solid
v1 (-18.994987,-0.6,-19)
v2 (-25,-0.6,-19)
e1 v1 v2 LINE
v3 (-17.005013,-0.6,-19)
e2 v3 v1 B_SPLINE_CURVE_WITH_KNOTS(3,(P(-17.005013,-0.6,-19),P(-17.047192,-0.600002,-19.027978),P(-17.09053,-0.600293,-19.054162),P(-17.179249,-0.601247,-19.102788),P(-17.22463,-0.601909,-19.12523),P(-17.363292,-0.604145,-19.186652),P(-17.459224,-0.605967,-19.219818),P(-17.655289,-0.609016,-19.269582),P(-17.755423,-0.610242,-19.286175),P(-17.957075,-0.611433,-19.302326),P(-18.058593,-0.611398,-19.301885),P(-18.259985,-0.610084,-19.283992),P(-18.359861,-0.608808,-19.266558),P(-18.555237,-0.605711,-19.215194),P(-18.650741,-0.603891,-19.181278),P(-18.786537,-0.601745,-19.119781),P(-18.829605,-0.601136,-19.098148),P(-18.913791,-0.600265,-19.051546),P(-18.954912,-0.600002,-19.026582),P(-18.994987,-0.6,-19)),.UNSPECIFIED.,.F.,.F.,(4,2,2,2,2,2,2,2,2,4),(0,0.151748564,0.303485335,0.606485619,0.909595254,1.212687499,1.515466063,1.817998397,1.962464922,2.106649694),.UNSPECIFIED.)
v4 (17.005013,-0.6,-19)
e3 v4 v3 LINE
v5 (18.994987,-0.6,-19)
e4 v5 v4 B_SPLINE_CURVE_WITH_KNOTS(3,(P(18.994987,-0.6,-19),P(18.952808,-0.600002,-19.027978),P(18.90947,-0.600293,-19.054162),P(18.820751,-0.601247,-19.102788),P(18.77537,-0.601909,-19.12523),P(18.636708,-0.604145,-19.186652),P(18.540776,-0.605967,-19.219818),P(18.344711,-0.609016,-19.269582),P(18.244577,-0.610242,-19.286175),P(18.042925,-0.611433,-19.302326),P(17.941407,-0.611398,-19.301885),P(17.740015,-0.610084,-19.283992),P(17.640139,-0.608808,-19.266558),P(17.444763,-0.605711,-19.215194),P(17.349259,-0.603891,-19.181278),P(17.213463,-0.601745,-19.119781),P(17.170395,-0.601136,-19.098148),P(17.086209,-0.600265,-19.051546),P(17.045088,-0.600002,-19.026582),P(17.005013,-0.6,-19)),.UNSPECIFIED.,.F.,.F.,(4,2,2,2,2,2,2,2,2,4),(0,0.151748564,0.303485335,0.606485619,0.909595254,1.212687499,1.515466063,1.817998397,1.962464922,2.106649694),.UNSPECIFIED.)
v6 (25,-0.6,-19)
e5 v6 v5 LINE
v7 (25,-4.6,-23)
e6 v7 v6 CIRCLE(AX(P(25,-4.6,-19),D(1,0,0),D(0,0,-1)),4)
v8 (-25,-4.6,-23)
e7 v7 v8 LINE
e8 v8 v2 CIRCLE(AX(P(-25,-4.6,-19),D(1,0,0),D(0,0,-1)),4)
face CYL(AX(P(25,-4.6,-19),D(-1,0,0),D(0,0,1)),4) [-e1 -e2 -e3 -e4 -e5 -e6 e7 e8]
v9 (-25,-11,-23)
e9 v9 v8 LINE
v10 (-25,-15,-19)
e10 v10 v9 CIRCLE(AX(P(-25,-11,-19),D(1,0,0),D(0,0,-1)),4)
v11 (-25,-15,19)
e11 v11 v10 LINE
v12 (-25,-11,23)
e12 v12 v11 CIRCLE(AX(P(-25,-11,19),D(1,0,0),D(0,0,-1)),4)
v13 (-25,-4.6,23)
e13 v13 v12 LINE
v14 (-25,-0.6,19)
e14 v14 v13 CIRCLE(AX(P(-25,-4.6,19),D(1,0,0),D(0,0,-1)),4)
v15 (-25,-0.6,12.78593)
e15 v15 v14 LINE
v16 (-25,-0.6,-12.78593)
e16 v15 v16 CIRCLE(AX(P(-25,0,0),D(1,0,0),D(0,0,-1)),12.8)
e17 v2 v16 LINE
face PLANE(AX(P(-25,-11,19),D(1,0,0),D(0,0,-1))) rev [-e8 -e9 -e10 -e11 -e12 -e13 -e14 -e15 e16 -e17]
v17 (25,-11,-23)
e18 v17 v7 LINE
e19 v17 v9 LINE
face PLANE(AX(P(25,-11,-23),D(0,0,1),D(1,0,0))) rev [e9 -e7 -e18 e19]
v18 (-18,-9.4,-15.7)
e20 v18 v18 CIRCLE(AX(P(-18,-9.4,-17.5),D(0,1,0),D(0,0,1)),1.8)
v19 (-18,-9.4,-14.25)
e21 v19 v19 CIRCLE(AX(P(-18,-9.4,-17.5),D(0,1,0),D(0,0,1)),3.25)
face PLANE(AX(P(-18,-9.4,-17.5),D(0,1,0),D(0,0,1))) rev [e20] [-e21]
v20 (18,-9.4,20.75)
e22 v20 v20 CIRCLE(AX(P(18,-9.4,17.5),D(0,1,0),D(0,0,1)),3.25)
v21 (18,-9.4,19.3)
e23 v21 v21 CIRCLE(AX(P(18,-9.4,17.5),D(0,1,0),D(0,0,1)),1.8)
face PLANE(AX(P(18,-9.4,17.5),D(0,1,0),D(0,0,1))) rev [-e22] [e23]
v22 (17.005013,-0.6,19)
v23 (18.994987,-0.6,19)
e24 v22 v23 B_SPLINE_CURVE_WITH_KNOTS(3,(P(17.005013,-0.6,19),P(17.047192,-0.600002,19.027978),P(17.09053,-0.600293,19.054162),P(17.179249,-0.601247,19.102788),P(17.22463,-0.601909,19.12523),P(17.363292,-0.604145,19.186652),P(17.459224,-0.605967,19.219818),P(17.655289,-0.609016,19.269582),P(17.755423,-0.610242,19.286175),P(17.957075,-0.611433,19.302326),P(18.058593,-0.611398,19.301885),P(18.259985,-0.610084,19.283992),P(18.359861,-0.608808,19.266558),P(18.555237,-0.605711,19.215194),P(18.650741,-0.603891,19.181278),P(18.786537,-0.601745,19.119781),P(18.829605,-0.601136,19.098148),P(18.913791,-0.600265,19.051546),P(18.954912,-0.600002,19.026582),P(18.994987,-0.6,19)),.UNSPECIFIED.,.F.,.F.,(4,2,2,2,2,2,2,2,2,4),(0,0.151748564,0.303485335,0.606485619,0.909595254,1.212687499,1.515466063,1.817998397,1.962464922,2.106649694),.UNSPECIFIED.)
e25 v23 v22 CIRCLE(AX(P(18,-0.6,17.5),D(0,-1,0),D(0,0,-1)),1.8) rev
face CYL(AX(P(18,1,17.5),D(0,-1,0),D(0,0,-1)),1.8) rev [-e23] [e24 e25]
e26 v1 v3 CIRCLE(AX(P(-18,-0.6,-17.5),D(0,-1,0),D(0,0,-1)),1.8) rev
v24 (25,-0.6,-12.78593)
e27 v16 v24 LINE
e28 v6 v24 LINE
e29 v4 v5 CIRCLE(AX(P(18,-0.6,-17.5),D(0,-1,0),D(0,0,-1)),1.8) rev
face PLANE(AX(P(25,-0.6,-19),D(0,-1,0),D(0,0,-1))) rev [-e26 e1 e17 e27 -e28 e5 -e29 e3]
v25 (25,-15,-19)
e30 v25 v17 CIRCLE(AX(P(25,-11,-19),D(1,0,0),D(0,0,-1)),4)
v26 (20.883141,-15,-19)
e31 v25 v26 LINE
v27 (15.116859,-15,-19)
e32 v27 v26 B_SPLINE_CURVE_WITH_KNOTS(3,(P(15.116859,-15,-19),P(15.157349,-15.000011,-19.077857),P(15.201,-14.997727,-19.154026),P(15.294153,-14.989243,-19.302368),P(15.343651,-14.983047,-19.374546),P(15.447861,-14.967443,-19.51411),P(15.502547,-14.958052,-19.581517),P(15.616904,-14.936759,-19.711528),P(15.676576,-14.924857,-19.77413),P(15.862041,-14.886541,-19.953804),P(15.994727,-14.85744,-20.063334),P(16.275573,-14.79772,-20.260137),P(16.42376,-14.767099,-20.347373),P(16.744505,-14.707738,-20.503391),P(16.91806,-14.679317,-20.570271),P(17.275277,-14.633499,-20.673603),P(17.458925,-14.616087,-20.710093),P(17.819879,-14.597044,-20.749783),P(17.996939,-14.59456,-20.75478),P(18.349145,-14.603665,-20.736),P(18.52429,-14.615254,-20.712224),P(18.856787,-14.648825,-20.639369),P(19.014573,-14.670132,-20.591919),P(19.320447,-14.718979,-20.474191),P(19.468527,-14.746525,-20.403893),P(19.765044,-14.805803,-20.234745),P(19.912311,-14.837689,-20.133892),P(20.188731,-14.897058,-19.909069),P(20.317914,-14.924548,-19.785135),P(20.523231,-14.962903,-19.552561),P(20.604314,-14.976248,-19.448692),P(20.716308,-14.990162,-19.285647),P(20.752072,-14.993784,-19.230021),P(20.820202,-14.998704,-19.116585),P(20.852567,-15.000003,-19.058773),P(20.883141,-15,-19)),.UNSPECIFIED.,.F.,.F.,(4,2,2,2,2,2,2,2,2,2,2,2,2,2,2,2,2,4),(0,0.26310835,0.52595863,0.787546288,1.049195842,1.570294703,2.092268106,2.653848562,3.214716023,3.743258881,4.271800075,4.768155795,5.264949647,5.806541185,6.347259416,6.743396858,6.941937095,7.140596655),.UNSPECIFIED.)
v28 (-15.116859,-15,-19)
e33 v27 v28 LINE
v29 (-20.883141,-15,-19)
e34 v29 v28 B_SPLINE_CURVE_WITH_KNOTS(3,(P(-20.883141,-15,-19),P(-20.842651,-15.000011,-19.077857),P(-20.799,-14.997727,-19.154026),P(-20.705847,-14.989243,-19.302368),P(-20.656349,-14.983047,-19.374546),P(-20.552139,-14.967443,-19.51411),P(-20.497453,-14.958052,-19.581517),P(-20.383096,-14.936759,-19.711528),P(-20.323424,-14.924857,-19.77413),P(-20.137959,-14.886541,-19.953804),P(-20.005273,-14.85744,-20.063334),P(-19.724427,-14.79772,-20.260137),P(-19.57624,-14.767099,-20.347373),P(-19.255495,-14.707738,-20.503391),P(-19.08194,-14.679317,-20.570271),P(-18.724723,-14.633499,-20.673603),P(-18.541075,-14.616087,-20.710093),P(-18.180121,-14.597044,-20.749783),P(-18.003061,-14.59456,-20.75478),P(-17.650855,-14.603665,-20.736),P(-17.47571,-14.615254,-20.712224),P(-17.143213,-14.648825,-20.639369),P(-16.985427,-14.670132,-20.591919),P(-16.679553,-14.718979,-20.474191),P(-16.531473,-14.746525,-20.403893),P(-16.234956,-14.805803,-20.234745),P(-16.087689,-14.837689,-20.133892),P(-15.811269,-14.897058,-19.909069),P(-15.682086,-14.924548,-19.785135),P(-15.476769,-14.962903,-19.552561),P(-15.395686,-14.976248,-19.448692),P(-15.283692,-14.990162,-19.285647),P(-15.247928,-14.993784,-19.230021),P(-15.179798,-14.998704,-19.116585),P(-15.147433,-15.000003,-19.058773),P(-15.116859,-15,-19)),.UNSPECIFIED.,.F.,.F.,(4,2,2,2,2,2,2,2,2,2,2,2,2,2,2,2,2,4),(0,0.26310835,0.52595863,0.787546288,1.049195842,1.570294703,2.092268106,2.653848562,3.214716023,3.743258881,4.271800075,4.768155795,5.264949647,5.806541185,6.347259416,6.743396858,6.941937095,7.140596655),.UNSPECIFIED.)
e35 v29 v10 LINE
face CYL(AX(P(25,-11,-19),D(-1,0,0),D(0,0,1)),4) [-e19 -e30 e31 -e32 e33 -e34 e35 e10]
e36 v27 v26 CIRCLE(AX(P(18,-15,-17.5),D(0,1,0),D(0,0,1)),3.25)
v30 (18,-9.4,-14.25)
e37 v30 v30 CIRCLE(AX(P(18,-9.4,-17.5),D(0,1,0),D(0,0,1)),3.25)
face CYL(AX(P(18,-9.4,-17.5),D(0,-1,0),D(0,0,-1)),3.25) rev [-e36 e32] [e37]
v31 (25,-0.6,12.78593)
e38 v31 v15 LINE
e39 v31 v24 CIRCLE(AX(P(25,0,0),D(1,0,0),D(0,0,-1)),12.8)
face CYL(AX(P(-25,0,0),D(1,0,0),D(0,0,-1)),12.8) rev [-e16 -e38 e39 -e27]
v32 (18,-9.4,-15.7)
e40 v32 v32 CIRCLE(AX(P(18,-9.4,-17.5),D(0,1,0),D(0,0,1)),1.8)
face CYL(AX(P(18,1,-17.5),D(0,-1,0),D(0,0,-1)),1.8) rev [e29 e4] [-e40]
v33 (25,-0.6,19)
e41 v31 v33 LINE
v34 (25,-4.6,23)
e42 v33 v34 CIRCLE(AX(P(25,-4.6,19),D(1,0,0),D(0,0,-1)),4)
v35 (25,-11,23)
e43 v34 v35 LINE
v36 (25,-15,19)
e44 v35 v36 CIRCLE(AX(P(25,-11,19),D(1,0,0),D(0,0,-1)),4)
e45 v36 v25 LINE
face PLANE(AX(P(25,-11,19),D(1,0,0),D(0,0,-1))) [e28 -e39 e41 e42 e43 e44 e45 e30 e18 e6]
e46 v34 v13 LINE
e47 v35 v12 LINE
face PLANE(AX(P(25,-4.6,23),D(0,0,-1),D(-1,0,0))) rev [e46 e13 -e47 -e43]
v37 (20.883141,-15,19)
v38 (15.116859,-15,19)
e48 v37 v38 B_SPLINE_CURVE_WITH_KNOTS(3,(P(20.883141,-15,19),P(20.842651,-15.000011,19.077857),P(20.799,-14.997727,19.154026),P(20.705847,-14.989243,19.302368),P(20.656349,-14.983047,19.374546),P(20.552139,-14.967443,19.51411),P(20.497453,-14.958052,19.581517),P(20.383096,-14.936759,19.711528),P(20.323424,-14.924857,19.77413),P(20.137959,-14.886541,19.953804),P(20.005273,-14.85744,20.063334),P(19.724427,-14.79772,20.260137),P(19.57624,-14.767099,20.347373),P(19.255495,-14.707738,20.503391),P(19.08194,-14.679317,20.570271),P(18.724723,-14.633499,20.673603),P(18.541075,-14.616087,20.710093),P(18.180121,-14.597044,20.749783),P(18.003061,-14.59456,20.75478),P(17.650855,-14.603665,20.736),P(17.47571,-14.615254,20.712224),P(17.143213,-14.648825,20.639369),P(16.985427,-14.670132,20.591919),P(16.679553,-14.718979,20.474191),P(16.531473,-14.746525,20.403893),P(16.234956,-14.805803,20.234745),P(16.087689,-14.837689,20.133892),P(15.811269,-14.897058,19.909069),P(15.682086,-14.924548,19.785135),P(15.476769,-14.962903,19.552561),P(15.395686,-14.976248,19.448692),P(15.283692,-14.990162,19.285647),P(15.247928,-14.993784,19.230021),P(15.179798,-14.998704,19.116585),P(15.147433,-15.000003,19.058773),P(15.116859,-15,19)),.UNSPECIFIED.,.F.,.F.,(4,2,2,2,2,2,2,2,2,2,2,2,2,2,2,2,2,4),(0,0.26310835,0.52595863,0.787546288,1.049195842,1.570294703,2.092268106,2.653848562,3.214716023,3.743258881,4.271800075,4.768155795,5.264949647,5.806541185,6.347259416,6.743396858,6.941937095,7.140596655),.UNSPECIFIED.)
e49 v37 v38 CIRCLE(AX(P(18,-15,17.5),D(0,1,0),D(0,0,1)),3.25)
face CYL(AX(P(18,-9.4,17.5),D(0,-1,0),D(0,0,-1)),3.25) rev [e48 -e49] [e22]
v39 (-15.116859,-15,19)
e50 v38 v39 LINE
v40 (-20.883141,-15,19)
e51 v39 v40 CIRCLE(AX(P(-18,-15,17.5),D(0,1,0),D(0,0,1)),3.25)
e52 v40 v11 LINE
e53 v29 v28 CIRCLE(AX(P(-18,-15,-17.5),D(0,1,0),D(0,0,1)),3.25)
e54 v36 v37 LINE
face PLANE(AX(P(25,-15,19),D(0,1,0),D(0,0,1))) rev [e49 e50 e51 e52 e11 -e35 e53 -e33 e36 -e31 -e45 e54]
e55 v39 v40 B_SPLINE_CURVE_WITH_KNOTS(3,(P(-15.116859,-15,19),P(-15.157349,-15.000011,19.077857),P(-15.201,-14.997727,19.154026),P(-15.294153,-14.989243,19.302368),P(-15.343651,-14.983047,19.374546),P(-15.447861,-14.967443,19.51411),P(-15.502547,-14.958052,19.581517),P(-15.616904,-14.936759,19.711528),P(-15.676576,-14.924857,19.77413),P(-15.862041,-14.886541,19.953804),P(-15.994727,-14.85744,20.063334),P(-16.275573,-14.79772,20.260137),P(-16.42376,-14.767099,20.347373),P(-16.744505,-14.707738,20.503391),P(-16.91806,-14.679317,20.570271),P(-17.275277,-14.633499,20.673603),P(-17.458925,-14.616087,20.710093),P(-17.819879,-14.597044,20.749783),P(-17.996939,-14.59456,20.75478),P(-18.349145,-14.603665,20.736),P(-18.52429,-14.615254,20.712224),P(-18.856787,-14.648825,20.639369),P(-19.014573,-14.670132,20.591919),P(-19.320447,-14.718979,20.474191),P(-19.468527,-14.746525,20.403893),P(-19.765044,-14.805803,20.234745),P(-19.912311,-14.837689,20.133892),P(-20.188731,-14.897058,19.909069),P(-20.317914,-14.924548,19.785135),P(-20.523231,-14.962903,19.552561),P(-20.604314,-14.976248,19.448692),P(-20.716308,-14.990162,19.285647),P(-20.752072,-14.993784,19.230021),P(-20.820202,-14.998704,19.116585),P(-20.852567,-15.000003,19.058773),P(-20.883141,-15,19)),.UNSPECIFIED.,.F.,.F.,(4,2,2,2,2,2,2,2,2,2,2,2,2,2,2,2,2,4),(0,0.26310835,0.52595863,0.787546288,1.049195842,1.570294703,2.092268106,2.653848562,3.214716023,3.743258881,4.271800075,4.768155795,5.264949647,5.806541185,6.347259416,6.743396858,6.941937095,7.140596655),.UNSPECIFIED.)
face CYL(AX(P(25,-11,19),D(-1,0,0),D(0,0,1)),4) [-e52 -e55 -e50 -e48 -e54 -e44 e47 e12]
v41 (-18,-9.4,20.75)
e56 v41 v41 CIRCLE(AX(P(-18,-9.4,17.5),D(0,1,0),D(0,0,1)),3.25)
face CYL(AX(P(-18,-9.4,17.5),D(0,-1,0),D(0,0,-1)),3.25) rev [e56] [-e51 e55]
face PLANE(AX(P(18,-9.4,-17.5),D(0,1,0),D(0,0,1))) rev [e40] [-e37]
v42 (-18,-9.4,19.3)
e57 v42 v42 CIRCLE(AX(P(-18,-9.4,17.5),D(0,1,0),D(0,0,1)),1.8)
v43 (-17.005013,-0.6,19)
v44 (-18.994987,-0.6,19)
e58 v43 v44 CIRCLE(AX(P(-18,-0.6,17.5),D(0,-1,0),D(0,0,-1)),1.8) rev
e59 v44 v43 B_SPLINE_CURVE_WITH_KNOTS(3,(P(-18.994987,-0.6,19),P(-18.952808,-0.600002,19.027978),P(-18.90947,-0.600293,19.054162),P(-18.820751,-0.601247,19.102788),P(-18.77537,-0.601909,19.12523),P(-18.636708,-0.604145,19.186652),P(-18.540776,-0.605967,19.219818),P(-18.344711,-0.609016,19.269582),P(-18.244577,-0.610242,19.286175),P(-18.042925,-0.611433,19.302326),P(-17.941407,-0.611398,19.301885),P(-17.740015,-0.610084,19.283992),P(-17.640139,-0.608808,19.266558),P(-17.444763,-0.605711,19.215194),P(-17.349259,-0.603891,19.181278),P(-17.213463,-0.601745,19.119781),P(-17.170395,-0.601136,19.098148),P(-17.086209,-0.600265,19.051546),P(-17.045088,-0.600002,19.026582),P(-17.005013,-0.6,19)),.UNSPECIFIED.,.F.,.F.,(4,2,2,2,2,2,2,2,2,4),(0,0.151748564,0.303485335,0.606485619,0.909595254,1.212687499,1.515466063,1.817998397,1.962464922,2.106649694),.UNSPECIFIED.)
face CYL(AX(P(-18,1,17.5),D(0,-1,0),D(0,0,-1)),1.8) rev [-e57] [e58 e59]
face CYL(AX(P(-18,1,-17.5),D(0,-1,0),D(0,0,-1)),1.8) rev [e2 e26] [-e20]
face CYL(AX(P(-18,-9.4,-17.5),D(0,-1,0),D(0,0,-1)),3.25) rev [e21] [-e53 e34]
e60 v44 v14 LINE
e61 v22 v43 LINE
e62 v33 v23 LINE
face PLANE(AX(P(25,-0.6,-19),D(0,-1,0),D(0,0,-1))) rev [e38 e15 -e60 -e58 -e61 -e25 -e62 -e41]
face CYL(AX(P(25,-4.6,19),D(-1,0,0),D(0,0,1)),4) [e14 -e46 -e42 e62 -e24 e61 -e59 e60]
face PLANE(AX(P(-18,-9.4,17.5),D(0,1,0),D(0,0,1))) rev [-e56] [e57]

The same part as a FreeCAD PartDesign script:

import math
import FreeCAD as App
import Part
import Sketcher
from FreeCAD import Vector
Q = App.Units.Quantity

doc = App.newDocument("Part")
body = doc.addObject("PartDesign::Body", "Body")

# Sketch on YZ plane
sketch1 = doc.addObject("Sketcher::SketchObject", "Sketch")
body.addObject(sketch1)
sketch1.AttachmentSupport = (doc.YZ_Plane, [""])
sketch1.MapMode = "FlatFace"
sketch1.addGeometry([
    Part.LineSegment(Vector(-15, 19, 0), Vector(-15, -19, 0)),  # 0
    Part.ArcOfCircle(Part.Circle(Vector(-11, -19, 0), Vector(0, 0, 1), 4), math.radians(180), math.radians(270)),  # 1
    Part.LineSegment(Vector(-11, -23, 0), Vector(-4.6, -23, 0)),  # 2
    Part.ArcOfCircle(Part.Circle(Vector(-4.6, -19, 0), Vector(0, 0, 1), 4), math.radians(-90), math.radians(0)),  # 3
    Part.LineSegment(Vector(-0.6, -19, 0), Vector(-0.6, 19, 0)),  # 4
    Part.ArcOfCircle(Part.Circle(Vector(-4.6, 19, 0), Vector(0, 0, 1), 4), math.radians(0), math.radians(90)),  # 5
    Part.LineSegment(Vector(-4.6, 23, 0), Vector(-11, 23, 0)),  # 6
    Part.ArcOfCircle(Part.Circle(Vector(-11, 19, 0), Vector(0, 0, 1), 4), math.radians(90), math.radians(180)),  # 7
], False)
sketch1.addConstraint([
    Sketcher.Constraint("Tangent", 0, 2, 1, 1),
    Sketcher.Constraint("Tangent", 1, 2, 2, 1),
    Sketcher.Constraint("Tangent", 2, 2, 3, 1),
    Sketcher.Constraint("Tangent", 3, 2, 4, 1),
    Sketcher.Constraint("Tangent", 4, 2, 5, 1),
    Sketcher.Constraint("Tangent", 5, 2, 6, 1),
    Sketcher.Constraint("Tangent", 6, 2, 7, 1),
    Sketcher.Constraint("Tangent", 7, 2, 0, 1),
    Sketcher.Constraint("Vertical", 0),
    Sketcher.Constraint("Horizontal", 2),
    Sketcher.Constraint("Vertical", 4),
    Sketcher.Constraint("Horizontal", 6),
    Sketcher.Constraint("Equal", 1, 3),
    Sketcher.Constraint("Equal", 3, 5),
    Sketcher.Constraint("Equal", 5, 7),
    Sketcher.Constraint("Radius", 1, Q("4 mm")),
    Sketcher.Constraint("DistanceY", 0, 2, 0, 1, Q("38 mm")),
    Sketcher.Constraint("DistanceX", 2, 1, 2, 2, Q("6.4 mm")),
    Sketcher.Constraint("DistanceX", 1, 3, -1, 1, Q("11 mm")),
    Sketcher.Constraint("DistanceY", 1, 3, -1, 1, Q("19 mm")),
])
pad1 = doc.addObject("PartDesign::Pad", "Pad")
body.addObject(pad1)
pad1.Profile = sketch1
pad1.Length = 50
pad1.Midplane = True

# Sketch on YZ plane
sketch2 = doc.addObject("Sketcher::SketchObject", "Sketch001")
body.addObject(sketch2)
sketch2.AttachmentSupport = (doc.YZ_Plane, [""])
sketch2.MapMode = "FlatFace"
sketch2.addGeometry(Part.Circle(Vector(0, 0, 0), Vector(0, 0, 1), 13), False)
sketch2.addConstraint([
    Sketcher.Constraint("Coincident", 0, 3, -1, 1),
    Sketcher.Constraint("Diameter", 0, Q("25.6 mm")),
])
pocket1 = doc.addObject("PartDesign::Pocket", "Pocket")
body.addObject(pocket1)
pocket1.Profile = sketch2
pocket1.Type = "ThroughAll"
pocket1.Midplane = True

# Sketch on XZ plane
sketch3 = doc.addObject("Sketcher::SketchObject", "Sketch002")
body.addObject(sketch3)
sketch3.AttachmentSupport = (doc.XZ_Plane, [""])
sketch3.MapMode = "FlatFace"
sketch3.AttachmentOffset = App.Placement(Vector(0, 0, 15), App.Rotation())
sketch3.addGeometry([
    Part.Circle(Vector(18, 17.5, 0), Vector(0, 0, 1), 1.8),
    Part.Circle(Vector(18, -17.5, 0), Vector(0, 0, 1), 1.8),
    Part.Circle(Vector(-18, 17.5, 0), Vector(0, 0, 1), 1.8),
    Part.Circle(Vector(-18, -17.5, 0), Vector(0, 0, 1), 1.8),
], False)
sketch3.addConstraint([
    Sketcher.Constraint("Equal", 0, 1),
    Sketcher.Constraint("Equal", 1, 2),
    Sketcher.Constraint("Equal", 2, 3),
    Sketcher.Constraint("Symmetric", 1, 3, 2, 3, -1, 1),
    Sketcher.Constraint("Symmetric", 0, 3, 3, 3, -1, 1),
    Sketcher.Constraint("Symmetric", 0, 3, 2, 3, -2),
    Sketcher.Constraint("Diameter", 0, Q("3.6 mm")),
    Sketcher.Constraint("DistanceX", -1, 1, 0, 3, Q("18 mm")),
    Sketcher.Constraint("DistanceY", 1, 3, 0, 3, Q("35 mm")),
])
pocket2 = doc.addObject("PartDesign::Pocket", "Pocket001")
body.addObject(pocket2)
pocket2.Profile = sketch3
pocket2.Length = 16

# Sketch on XZ plane
sketch4 = doc.addObject("Sketcher::SketchObject", "Sketch003")
body.addObject(sketch4)
sketch4.AttachmentSupport = (doc.XZ_Plane, [""])
sketch4.MapMode = "FlatFace"
sketch4.AttachmentOffset = App.Placement(Vector(0, 0, 15), App.Rotation())
sketch4.addGeometry([
    Part.Circle(Vector(18, 17.5, 0), Vector(0, 0, 1), 3.2),
    Part.Circle(Vector(18, -17.5, 0), Vector(0, 0, 1), 3.2),
    Part.Circle(Vector(-18, 17.5, 0), Vector(0, 0, 1), 3.2),
    Part.Circle(Vector(-18, -17.5, 0), Vector(0, 0, 1), 3.2),
], False)
sketch4.addConstraint([
    Sketcher.Constraint("Equal", 0, 1),
    Sketcher.Constraint("Equal", 1, 2),
    Sketcher.Constraint("Equal", 2, 3),
    Sketcher.Constraint("Symmetric", 1, 3, 2, 3, -1, 1),
    Sketcher.Constraint("Symmetric", 0, 3, 3, 3, -1, 1),
    Sketcher.Constraint("Symmetric", 0, 3, 2, 3, -2),
    Sketcher.Constraint("Diameter", 0, Q("6.5 mm")),
    Sketcher.Constraint("DistanceX", -1, 1, 0, 3, Q("18 mm")),
    Sketcher.Constraint("DistanceY", 1, 3, 0, 3, Q("35 mm")),
])
pocket3 = doc.addObject("PartDesign::Pocket", "Pocket002")
body.addObject(pocket3)
pocket3.Profile = sketch4
pocket3.Length = 5.6

doc.recompute()
